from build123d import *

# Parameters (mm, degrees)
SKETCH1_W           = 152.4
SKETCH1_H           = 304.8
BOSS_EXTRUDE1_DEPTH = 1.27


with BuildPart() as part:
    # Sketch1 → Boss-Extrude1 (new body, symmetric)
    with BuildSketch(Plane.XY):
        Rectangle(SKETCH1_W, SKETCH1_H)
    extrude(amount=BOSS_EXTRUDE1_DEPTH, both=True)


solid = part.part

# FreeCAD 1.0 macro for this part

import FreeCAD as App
import Part
import Sketcher
Q = App.Units.Quantity

doc = App.newDocument("Part")
body = doc.addObject("PartDesign::Body", "Body")

# Sketch on XY plane
sketch1 = body.newObject("Sketcher::SketchObject", "Sketch")
sketch1.AttachmentSupport = (doc.getObject("XY_Plane"), [""])
sketch1.MapMode = "FlatFace"
sketch1.addGeometry([
    Part.LineSegment(App.Vector(-76, 152, 0), App.Vector(-76, -152, 0)),
    Part.LineSegment(App.Vector(-76, -152, 0), App.Vector(76, -152, 0)),
    Part.LineSegment(App.Vector(76, -152, 0), App.Vector(76, 152, 0)),
    Part.LineSegment(App.Vector(76, 152, 0), App.Vector(-76, 152, 0)),
], False)
sketch1.addConstraint([
    Sketcher.Constraint("Coincident", 0, 2, 1, 1),
    Sketcher.Constraint("Coincident", 1, 2, 2, 1),
    Sketcher.Constraint("Coincident", 2, 2, 3, 1),
    Sketcher.Constraint("Coincident", 3, 2, 0, 1),
    Sketcher.Constraint("Vertical", 0),
    Sketcher.Constraint("Horizontal", 1),
    Sketcher.Constraint("Vertical", 2),
    Sketcher.Constraint("Horizontal", 3),
    Sketcher.Constraint("Symmetric", 0, 2, 2, 2, -1, 1),
    Sketcher.Constraint("DistanceX", 1, 1, 1, 2, Q("6 in")),
    Sketcher.Constraint("DistanceY", 0, 2, 0, 1, Q("12 in")),
])
pad1 = body.newObject("PartDesign::Pad", "Pad")
pad1.Profile = sketch1
pad1.Length = Q("0.1 in")
pad1.Midplane = True

doc.recompute()
